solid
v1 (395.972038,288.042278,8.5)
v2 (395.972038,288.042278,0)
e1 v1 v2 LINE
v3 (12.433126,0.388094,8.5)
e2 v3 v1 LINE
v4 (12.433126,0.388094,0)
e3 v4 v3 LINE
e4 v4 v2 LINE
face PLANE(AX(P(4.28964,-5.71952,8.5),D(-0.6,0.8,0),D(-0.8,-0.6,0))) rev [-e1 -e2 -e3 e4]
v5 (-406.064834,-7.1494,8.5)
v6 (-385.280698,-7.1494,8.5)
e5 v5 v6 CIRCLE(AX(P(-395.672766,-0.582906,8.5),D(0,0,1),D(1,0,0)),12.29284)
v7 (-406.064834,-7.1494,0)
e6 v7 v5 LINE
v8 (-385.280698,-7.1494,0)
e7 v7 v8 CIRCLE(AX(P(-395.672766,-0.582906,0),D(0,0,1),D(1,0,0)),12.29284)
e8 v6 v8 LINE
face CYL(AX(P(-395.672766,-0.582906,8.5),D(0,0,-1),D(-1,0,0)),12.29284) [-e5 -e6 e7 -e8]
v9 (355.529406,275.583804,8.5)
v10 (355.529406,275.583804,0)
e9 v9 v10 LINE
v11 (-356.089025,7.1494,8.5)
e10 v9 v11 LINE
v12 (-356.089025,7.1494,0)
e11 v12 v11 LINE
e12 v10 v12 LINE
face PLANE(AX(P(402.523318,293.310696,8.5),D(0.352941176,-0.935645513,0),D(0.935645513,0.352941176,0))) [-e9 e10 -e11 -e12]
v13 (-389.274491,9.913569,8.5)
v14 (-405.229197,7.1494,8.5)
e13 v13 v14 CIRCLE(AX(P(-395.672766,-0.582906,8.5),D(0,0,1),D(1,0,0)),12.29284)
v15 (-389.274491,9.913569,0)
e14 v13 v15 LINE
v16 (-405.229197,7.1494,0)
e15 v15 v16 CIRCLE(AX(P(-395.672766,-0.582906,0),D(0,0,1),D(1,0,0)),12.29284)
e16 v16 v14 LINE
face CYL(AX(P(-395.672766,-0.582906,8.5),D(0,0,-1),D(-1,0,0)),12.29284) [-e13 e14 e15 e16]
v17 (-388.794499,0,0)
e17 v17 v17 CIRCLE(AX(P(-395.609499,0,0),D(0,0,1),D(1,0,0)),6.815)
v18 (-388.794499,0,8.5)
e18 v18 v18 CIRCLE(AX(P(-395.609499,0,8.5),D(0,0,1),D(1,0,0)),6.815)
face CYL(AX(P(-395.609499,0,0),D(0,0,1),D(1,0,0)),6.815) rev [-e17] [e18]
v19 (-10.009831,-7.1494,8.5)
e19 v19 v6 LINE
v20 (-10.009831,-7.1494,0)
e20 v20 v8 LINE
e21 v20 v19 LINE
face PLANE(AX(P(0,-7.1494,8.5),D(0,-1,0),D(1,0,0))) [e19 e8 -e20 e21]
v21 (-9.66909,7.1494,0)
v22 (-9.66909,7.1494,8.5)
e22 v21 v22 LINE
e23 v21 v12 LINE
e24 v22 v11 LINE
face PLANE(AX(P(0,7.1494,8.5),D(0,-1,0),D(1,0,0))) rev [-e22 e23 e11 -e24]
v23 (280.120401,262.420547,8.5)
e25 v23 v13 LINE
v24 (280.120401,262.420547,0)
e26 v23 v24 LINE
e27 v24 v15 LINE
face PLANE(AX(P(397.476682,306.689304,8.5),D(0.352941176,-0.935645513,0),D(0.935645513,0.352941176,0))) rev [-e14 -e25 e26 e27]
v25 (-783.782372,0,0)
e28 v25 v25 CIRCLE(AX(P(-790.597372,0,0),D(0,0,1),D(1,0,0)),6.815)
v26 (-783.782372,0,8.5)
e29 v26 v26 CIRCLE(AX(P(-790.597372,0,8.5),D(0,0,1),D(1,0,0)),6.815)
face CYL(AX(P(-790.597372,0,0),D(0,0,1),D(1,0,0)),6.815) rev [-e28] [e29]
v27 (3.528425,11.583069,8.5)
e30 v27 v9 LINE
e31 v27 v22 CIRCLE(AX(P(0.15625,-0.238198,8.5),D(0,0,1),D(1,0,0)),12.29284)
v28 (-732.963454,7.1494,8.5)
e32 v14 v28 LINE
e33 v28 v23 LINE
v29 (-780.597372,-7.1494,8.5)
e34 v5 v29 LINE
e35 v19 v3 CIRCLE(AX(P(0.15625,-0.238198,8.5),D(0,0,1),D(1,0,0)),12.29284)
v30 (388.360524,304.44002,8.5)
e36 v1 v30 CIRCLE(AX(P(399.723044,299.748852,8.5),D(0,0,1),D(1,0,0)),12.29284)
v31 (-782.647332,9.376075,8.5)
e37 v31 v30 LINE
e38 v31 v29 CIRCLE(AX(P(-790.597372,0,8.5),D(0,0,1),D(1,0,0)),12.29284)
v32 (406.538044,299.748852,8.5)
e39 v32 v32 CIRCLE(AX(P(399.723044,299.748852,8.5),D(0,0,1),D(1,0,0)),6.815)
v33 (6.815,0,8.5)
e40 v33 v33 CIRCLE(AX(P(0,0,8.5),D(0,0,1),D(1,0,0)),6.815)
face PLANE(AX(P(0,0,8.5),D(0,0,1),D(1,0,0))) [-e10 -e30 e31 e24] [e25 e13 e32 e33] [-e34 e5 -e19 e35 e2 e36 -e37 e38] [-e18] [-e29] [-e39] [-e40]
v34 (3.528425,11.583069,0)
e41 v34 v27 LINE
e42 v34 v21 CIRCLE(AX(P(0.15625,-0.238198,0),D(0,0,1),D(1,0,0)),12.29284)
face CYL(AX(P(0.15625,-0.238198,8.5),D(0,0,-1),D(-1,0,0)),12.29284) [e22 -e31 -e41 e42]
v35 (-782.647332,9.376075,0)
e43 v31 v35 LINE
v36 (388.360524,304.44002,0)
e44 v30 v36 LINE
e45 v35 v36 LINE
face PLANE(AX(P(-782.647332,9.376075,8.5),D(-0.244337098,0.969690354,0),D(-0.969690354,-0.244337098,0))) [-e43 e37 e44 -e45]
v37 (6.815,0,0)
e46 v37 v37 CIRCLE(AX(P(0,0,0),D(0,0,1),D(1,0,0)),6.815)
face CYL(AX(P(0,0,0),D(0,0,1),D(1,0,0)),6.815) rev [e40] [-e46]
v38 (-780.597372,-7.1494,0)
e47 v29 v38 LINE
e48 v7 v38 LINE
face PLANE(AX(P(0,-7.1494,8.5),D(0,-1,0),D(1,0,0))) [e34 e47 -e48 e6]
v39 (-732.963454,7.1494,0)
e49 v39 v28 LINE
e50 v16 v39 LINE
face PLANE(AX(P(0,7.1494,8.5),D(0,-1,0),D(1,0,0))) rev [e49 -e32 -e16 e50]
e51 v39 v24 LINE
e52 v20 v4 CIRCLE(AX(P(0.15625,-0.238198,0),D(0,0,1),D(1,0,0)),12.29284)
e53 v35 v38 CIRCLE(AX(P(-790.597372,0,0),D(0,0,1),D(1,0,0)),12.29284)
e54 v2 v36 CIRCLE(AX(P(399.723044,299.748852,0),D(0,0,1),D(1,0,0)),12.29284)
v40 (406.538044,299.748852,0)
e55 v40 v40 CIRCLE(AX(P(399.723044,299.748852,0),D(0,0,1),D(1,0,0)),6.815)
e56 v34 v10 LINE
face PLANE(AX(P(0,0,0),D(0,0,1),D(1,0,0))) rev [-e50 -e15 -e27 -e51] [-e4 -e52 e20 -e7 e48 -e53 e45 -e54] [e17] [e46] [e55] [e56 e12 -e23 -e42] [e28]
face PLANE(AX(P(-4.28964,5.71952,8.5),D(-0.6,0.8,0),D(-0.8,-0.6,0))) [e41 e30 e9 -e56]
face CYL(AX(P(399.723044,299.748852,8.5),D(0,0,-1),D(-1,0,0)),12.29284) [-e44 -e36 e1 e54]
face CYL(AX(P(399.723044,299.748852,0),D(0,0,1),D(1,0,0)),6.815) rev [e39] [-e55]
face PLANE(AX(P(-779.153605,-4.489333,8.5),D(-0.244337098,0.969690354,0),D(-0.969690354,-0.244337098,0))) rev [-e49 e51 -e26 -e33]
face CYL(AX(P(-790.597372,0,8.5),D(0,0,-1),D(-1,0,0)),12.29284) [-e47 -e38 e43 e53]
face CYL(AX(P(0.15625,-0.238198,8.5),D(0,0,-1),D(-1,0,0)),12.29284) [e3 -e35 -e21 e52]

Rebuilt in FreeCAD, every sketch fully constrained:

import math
import FreeCAD as App
import Part
import Sketcher

doc = App.newDocument("Part")
body = doc.addObject("PartDesign::Body", "Body")

sketch1 = body.newObject("Sketcher::SketchObject", "Sketch")
sketch1.AttachmentSupport = (doc.getObject("XY_Plane"), [""])
sketch1.MapMode = "FlatFace"
sketch1.addGeometry([
    Part.ArcOfCircle(Part.Circle(App.Vector(400, 300, 0), App.Vector(0, 0, 1), 12), math.radians(-108), math.radians(158)),
    Part.LineSegment(App.Vector(388, 304, 0), App.Vector(-783, 9, 0)),
    Part.ArcOfCircle(Part.Circle(App.Vector(-791, 0, 0), App.Vector(0, 0, 1), 12), math.radians(50), math.radians(324)),
    Part.LineSegment(App.Vector(-781, -7, 0), App.Vector(-406, -7, 0)),
    Part.ArcOfCircle(Part.Circle(App.Vector(-396, -1, 0), App.Vector(0, 0, 1), 12), math.radians(-148), math.radians(-32)),
    Part.LineSegment(App.Vector(-385, -7, 0), App.Vector(-10, -7, 0)),
    Part.ArcOfCircle(Part.Circle(App.Vector(0, 0, 0), App.Vector(0, 0, 1), 12), math.radians(-146), math.radians(3)),
    Part.LineSegment(App.Vector(12, 0, 0), App.Vector(396, 288, 0)),
    Part.LineSegment(App.Vector(-405, 7, 0), App.Vector(-733, 7, 0)),
    Part.LineSegment(App.Vector(-733, 7, 0), App.Vector(280, 262, 0)),
    Part.LineSegment(App.Vector(280, 262, 0), App.Vector(-389, 10, 0)),
    Part.ArcOfCircle(Part.Circle(App.Vector(-396, -1, 0), App.Vector(0, 0, 1), 12), math.radians(59), math.radians(141)),
    Part.LineSegment(App.Vector(-356, 7, 0), App.Vector(356, 276, 0)),
    Part.LineSegment(App.Vector(356, 276, 0), App.Vector(4, 12, 0)),
    Part.ArcOfCircle(Part.Circle(App.Vector(0, 0, 0), App.Vector(0, 0, 1), 12), math.radians(74), math.radians(143)),
    Part.LineSegment(App.Vector(-10, 7, 0), App.Vector(-356, 7, 0)),
], False)
sketch1.addConstraint([
    Sketcher.Constraint("Coincident", 0, 2, 1, 1),
    Sketcher.Constraint("Coincident", 1, 2, 2, 1),
    Sketcher.Constraint("Coincident", 2, 2, 3, 1),
    Sketcher.Constraint("Coincident", 3, 2, 4, 1),
    Sketcher.Constraint("Coincident", 4, 2, 5, 1),
    Sketcher.Constraint("Coincident", 5, 2, 6, 1),
    Sketcher.Constraint("Coincident", 6, 2, 7, 1),
    Sketcher.Constraint("Coincident", 7, 2, 0, 1),
    Sketcher.Constraint("Coincident", 8, 2, 9, 1),
    Sketcher.Constraint("Coincident", 9, 2, 10, 1),
    Sketcher.Constraint("Coincident", 10, 2, 11, 1),
    Sketcher.Constraint("Coincident", 11, 2, 8, 1),
    Sketcher.Constraint("Coincident", 12, 2, 13, 1),
    Sketcher.Constraint("Coincident", 13, 2, 14, 1),
    Sketcher.Constraint("Coincident", 14, 2, 15, 1),
    Sketcher.Constraint("Coincident", 15, 2, 12, 1),
    Sketcher.Constraint("Horizontal", 3),
    Sketcher.Constraint("Horizontal", 5),
    Sketcher.Constraint("Horizontal", 8),
    Sketcher.Constraint("Horizontal", 15),
    Sketcher.Constraint("Coincident", 11, 3, 4, 3),
    Sketcher.Constraint("Coincident", 14, 3, 6, 3),
    Sketcher.Constraint("Equal", 0, 2),
    Sketcher.Constraint("Equal", 2, 4),
    Sketcher.Constraint("Equal", 4, 6),
    Sketcher.Constraint("Equal", 6, 11),
    Sketcher.Constraint("Equal", 11, 14),
    Sketcher.Constraint("PointOnObject", 2, 3, -1),
    Sketcher.Constraint("Parallel", 1, 9),
    Sketcher.Constraint("Parallel", 10, 12),
    Sketcher.Constraint("Parallel", 7, 13),
    Sketcher.Constraint("Horizontal", 3, 2, 4, 2),
    Sketcher.Constraint("Horizontal", 11, 2, 14, 2),
    Sketcher.Constraint("DistanceX", 2, 3, 2, 2, 10.0),
    Sketcher.Constraint("Radius", 0, 12.29284),
    Sketcher.Constraint("DistanceY", 4, 3, 6, 2, 0.971),
    Sketcher.Constraint("DistanceX", 3, 1, 3, 2, 374.532538),
    Sketcher.Constraint("DistanceY", 6, 3, -1, 1, 0.238198),
    Sketcher.Constraint("DistanceX", 4, 2, -1, 1, 385.280698),
    Sketcher.Constraint("DistanceY", -1, 1, 8, 2, 7.1494),
    Sketcher.Constraint("DistanceX", -1, 1, 9, 2, 280.120401),
    Sketcher.Constraint("DistanceX", 1, 2, 3, 2, 376.582498),
    Sketcher.Constraint("DistanceX", 11, 2, 4, 2, 19.948499),
    Sketcher.Constraint("DistanceX", 13, 2, 6, 2, 8.904701),
    Sketcher.Constraint("Distance", 1, 1207.610091),
    Sketcher.Constraint("Distance", 7, 479.42364),
    Sketcher.Constraint("DistanceX", 5, 1, 5, 2, 375.270867),
    Sketcher.Constraint("DistanceX", 8, 2, 8, 1, 327.734258),
    Sketcher.Constraint("DistanceX", 15, 2, 15, 1, 346.419934),
    Sketcher.Constraint("DistanceY", -1, 1, 0, 3, 299.748852),
    Sketcher.Constraint("DistanceY", -1, 1, 0, 2, 304.44002),
    Sketcher.Constraint("DistanceX", 10, 2, -1, 1, 389.274491),
])
pad1 = body.newObject("PartDesign::Pad", "Pad")
pad1.Profile = sketch1
pad1.Length = 8.5

sketch2 = body.newObject("Sketcher::SketchObject", "Sketch001")
sketch2.AttachmentSupport = (doc.getObject("XY_Plane"), [""])
sketch2.MapMode = "FlatFace"
sketch2.AttachmentOffset = App.Placement(App.Vector(0, 0, 8.5), App.Rotation())
sketch2.addGeometry([
    Part.Circle(App.Vector(0, 0, 0), App.Vector(0, 0, 1), 7),
    Part.Circle(App.Vector(400, 300, 0), App.Vector(0, 0, 1), 7),
    Part.Circle(App.Vector(-396, 0, 0), App.Vector(0, 0, 1), 7),
    Part.Circle(App.Vector(-791, 0, 0), App.Vector(0, 0, 1), 7),
], False)
sketch2.addConstraint([
    Sketcher.Constraint("Coincident", 0, 3, -1, 1),
    Sketcher.Constraint("Equal", 0, 1),
    Sketcher.Constraint("Equal", 1, 2),
    Sketcher.Constraint("Equal", 2, 3),
    Sketcher.Constraint("PointOnObject", 2, 3, -1),
    Sketcher.Constraint("PointOnObject", 3, 3, -1),
    Sketcher.Constraint("Diameter", 0, 13.63),
    Sketcher.Constraint("DistanceX", 2, 3, -1, 1, 395.609499),
    Sketcher.Constraint("DistanceY", -1, 1, 1, 3, 299.748852),
    Sketcher.Constraint("DistanceX", -1, 1, 1, 3, 399.723044),
    Sketcher.Constraint("DistanceX", 3, 3, -1, 1, 790.597372),
])
pocket1 = body.newObject("PartDesign::Pocket", "Pocket")
pocket1.Profile = sketch2
pocket1.Type = "ThroughAll"

doc.recompute()
